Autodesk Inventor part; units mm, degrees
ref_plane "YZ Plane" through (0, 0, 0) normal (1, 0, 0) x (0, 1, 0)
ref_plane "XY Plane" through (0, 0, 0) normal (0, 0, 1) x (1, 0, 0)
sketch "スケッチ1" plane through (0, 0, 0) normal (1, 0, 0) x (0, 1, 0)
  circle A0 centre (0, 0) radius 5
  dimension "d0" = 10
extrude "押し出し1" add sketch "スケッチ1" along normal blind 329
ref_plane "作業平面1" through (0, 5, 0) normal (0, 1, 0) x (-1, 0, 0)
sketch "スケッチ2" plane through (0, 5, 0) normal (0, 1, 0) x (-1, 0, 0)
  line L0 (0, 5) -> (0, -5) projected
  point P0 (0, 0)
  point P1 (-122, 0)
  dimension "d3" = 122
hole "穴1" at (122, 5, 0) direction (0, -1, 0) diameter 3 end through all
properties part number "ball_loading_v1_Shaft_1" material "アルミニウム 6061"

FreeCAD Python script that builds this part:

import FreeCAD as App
import Part
import Sketcher
from FreeCAD import Vector

doc = App.newDocument("Part")
params = doc.addObject("Spreadsheet::Sheet", "Params")
for row, (alias, value) in enumerate([
    ("sketch1_diameter", "10 mm"),
    ("pad1_length", "329 mm"),
    ("sketch2_diameter", "3 mm"),
    ("hole_diameter", "3 mm"),
], start=1):
    params.set(f"A{row}", alias)
    params.set(f"B{row}", "=" + value)
    params.setAlias(f"B{row}", alias)

body = doc.addObject("PartDesign::Body", "Body")

# Sketch on YZ plane
sketch1 = doc.addObject("Sketcher::SketchObject", "Sketch")
body.addObject(sketch1)
sketch1.AttachmentSupport = (doc.YZ_Plane, [""])
sketch1.MapMode = "FlatFace"
sketch1.addGeometry(Part.Circle(Vector(0, 0, 0), Vector(0, 0, 1), 5), False)
sketch1.addConstraint([
    Sketcher.Constraint("Coincident", 0, 3, -1, 1),
    Sketcher.Constraint("Diameter", 0, 10.0),
])
sketch1.setExpression("Constraints[1]", "Params.sketch1_diameter")
pad1 = doc.addObject("PartDesign::Pad", "Pad")
body.addObject(pad1)
pad1.Profile = sketch1
pad1.setExpression("Length", "Params.pad1_length")

# Sketch on XZ plane
sketch2 = doc.addObject("Sketcher::SketchObject", "Sketch001")
body.addObject(sketch2)
sketch2.AttachmentSupport = (doc.XZ_Plane, [""])
sketch2.MapMode = "FlatFace"
sketch2.AttachmentOffset = App.Placement(Vector(0, 0, -5), App.Rotation())
sketch2.addGeometry(Part.Circle(Vector(122, 0, 0), Vector(0, 0, 1), 1.5), False)
sketch2.addConstraint([
    Sketcher.Constraint("PointOnObject", 0, 3, -1),
    Sketcher.Constraint("Diameter", 0, 3.0),
    Sketcher.Constraint("DistanceX", -1, 1, 0, 3, 122.0),
])
sketch2.setExpression("Constraints[1]", "Params.sketch2_diameter")
doc.recompute()
hole = doc.addObject("PartDesign::Hole", "Hole")
body.addObject(hole)
hole.Profile = sketch2
hole.ThreadType = "None"
hole.setExpression("Diameter", "Params.hole_diameter")
hole.DepthType = "ThroughAll"
hole.Reversed = True

doc.recompute()
